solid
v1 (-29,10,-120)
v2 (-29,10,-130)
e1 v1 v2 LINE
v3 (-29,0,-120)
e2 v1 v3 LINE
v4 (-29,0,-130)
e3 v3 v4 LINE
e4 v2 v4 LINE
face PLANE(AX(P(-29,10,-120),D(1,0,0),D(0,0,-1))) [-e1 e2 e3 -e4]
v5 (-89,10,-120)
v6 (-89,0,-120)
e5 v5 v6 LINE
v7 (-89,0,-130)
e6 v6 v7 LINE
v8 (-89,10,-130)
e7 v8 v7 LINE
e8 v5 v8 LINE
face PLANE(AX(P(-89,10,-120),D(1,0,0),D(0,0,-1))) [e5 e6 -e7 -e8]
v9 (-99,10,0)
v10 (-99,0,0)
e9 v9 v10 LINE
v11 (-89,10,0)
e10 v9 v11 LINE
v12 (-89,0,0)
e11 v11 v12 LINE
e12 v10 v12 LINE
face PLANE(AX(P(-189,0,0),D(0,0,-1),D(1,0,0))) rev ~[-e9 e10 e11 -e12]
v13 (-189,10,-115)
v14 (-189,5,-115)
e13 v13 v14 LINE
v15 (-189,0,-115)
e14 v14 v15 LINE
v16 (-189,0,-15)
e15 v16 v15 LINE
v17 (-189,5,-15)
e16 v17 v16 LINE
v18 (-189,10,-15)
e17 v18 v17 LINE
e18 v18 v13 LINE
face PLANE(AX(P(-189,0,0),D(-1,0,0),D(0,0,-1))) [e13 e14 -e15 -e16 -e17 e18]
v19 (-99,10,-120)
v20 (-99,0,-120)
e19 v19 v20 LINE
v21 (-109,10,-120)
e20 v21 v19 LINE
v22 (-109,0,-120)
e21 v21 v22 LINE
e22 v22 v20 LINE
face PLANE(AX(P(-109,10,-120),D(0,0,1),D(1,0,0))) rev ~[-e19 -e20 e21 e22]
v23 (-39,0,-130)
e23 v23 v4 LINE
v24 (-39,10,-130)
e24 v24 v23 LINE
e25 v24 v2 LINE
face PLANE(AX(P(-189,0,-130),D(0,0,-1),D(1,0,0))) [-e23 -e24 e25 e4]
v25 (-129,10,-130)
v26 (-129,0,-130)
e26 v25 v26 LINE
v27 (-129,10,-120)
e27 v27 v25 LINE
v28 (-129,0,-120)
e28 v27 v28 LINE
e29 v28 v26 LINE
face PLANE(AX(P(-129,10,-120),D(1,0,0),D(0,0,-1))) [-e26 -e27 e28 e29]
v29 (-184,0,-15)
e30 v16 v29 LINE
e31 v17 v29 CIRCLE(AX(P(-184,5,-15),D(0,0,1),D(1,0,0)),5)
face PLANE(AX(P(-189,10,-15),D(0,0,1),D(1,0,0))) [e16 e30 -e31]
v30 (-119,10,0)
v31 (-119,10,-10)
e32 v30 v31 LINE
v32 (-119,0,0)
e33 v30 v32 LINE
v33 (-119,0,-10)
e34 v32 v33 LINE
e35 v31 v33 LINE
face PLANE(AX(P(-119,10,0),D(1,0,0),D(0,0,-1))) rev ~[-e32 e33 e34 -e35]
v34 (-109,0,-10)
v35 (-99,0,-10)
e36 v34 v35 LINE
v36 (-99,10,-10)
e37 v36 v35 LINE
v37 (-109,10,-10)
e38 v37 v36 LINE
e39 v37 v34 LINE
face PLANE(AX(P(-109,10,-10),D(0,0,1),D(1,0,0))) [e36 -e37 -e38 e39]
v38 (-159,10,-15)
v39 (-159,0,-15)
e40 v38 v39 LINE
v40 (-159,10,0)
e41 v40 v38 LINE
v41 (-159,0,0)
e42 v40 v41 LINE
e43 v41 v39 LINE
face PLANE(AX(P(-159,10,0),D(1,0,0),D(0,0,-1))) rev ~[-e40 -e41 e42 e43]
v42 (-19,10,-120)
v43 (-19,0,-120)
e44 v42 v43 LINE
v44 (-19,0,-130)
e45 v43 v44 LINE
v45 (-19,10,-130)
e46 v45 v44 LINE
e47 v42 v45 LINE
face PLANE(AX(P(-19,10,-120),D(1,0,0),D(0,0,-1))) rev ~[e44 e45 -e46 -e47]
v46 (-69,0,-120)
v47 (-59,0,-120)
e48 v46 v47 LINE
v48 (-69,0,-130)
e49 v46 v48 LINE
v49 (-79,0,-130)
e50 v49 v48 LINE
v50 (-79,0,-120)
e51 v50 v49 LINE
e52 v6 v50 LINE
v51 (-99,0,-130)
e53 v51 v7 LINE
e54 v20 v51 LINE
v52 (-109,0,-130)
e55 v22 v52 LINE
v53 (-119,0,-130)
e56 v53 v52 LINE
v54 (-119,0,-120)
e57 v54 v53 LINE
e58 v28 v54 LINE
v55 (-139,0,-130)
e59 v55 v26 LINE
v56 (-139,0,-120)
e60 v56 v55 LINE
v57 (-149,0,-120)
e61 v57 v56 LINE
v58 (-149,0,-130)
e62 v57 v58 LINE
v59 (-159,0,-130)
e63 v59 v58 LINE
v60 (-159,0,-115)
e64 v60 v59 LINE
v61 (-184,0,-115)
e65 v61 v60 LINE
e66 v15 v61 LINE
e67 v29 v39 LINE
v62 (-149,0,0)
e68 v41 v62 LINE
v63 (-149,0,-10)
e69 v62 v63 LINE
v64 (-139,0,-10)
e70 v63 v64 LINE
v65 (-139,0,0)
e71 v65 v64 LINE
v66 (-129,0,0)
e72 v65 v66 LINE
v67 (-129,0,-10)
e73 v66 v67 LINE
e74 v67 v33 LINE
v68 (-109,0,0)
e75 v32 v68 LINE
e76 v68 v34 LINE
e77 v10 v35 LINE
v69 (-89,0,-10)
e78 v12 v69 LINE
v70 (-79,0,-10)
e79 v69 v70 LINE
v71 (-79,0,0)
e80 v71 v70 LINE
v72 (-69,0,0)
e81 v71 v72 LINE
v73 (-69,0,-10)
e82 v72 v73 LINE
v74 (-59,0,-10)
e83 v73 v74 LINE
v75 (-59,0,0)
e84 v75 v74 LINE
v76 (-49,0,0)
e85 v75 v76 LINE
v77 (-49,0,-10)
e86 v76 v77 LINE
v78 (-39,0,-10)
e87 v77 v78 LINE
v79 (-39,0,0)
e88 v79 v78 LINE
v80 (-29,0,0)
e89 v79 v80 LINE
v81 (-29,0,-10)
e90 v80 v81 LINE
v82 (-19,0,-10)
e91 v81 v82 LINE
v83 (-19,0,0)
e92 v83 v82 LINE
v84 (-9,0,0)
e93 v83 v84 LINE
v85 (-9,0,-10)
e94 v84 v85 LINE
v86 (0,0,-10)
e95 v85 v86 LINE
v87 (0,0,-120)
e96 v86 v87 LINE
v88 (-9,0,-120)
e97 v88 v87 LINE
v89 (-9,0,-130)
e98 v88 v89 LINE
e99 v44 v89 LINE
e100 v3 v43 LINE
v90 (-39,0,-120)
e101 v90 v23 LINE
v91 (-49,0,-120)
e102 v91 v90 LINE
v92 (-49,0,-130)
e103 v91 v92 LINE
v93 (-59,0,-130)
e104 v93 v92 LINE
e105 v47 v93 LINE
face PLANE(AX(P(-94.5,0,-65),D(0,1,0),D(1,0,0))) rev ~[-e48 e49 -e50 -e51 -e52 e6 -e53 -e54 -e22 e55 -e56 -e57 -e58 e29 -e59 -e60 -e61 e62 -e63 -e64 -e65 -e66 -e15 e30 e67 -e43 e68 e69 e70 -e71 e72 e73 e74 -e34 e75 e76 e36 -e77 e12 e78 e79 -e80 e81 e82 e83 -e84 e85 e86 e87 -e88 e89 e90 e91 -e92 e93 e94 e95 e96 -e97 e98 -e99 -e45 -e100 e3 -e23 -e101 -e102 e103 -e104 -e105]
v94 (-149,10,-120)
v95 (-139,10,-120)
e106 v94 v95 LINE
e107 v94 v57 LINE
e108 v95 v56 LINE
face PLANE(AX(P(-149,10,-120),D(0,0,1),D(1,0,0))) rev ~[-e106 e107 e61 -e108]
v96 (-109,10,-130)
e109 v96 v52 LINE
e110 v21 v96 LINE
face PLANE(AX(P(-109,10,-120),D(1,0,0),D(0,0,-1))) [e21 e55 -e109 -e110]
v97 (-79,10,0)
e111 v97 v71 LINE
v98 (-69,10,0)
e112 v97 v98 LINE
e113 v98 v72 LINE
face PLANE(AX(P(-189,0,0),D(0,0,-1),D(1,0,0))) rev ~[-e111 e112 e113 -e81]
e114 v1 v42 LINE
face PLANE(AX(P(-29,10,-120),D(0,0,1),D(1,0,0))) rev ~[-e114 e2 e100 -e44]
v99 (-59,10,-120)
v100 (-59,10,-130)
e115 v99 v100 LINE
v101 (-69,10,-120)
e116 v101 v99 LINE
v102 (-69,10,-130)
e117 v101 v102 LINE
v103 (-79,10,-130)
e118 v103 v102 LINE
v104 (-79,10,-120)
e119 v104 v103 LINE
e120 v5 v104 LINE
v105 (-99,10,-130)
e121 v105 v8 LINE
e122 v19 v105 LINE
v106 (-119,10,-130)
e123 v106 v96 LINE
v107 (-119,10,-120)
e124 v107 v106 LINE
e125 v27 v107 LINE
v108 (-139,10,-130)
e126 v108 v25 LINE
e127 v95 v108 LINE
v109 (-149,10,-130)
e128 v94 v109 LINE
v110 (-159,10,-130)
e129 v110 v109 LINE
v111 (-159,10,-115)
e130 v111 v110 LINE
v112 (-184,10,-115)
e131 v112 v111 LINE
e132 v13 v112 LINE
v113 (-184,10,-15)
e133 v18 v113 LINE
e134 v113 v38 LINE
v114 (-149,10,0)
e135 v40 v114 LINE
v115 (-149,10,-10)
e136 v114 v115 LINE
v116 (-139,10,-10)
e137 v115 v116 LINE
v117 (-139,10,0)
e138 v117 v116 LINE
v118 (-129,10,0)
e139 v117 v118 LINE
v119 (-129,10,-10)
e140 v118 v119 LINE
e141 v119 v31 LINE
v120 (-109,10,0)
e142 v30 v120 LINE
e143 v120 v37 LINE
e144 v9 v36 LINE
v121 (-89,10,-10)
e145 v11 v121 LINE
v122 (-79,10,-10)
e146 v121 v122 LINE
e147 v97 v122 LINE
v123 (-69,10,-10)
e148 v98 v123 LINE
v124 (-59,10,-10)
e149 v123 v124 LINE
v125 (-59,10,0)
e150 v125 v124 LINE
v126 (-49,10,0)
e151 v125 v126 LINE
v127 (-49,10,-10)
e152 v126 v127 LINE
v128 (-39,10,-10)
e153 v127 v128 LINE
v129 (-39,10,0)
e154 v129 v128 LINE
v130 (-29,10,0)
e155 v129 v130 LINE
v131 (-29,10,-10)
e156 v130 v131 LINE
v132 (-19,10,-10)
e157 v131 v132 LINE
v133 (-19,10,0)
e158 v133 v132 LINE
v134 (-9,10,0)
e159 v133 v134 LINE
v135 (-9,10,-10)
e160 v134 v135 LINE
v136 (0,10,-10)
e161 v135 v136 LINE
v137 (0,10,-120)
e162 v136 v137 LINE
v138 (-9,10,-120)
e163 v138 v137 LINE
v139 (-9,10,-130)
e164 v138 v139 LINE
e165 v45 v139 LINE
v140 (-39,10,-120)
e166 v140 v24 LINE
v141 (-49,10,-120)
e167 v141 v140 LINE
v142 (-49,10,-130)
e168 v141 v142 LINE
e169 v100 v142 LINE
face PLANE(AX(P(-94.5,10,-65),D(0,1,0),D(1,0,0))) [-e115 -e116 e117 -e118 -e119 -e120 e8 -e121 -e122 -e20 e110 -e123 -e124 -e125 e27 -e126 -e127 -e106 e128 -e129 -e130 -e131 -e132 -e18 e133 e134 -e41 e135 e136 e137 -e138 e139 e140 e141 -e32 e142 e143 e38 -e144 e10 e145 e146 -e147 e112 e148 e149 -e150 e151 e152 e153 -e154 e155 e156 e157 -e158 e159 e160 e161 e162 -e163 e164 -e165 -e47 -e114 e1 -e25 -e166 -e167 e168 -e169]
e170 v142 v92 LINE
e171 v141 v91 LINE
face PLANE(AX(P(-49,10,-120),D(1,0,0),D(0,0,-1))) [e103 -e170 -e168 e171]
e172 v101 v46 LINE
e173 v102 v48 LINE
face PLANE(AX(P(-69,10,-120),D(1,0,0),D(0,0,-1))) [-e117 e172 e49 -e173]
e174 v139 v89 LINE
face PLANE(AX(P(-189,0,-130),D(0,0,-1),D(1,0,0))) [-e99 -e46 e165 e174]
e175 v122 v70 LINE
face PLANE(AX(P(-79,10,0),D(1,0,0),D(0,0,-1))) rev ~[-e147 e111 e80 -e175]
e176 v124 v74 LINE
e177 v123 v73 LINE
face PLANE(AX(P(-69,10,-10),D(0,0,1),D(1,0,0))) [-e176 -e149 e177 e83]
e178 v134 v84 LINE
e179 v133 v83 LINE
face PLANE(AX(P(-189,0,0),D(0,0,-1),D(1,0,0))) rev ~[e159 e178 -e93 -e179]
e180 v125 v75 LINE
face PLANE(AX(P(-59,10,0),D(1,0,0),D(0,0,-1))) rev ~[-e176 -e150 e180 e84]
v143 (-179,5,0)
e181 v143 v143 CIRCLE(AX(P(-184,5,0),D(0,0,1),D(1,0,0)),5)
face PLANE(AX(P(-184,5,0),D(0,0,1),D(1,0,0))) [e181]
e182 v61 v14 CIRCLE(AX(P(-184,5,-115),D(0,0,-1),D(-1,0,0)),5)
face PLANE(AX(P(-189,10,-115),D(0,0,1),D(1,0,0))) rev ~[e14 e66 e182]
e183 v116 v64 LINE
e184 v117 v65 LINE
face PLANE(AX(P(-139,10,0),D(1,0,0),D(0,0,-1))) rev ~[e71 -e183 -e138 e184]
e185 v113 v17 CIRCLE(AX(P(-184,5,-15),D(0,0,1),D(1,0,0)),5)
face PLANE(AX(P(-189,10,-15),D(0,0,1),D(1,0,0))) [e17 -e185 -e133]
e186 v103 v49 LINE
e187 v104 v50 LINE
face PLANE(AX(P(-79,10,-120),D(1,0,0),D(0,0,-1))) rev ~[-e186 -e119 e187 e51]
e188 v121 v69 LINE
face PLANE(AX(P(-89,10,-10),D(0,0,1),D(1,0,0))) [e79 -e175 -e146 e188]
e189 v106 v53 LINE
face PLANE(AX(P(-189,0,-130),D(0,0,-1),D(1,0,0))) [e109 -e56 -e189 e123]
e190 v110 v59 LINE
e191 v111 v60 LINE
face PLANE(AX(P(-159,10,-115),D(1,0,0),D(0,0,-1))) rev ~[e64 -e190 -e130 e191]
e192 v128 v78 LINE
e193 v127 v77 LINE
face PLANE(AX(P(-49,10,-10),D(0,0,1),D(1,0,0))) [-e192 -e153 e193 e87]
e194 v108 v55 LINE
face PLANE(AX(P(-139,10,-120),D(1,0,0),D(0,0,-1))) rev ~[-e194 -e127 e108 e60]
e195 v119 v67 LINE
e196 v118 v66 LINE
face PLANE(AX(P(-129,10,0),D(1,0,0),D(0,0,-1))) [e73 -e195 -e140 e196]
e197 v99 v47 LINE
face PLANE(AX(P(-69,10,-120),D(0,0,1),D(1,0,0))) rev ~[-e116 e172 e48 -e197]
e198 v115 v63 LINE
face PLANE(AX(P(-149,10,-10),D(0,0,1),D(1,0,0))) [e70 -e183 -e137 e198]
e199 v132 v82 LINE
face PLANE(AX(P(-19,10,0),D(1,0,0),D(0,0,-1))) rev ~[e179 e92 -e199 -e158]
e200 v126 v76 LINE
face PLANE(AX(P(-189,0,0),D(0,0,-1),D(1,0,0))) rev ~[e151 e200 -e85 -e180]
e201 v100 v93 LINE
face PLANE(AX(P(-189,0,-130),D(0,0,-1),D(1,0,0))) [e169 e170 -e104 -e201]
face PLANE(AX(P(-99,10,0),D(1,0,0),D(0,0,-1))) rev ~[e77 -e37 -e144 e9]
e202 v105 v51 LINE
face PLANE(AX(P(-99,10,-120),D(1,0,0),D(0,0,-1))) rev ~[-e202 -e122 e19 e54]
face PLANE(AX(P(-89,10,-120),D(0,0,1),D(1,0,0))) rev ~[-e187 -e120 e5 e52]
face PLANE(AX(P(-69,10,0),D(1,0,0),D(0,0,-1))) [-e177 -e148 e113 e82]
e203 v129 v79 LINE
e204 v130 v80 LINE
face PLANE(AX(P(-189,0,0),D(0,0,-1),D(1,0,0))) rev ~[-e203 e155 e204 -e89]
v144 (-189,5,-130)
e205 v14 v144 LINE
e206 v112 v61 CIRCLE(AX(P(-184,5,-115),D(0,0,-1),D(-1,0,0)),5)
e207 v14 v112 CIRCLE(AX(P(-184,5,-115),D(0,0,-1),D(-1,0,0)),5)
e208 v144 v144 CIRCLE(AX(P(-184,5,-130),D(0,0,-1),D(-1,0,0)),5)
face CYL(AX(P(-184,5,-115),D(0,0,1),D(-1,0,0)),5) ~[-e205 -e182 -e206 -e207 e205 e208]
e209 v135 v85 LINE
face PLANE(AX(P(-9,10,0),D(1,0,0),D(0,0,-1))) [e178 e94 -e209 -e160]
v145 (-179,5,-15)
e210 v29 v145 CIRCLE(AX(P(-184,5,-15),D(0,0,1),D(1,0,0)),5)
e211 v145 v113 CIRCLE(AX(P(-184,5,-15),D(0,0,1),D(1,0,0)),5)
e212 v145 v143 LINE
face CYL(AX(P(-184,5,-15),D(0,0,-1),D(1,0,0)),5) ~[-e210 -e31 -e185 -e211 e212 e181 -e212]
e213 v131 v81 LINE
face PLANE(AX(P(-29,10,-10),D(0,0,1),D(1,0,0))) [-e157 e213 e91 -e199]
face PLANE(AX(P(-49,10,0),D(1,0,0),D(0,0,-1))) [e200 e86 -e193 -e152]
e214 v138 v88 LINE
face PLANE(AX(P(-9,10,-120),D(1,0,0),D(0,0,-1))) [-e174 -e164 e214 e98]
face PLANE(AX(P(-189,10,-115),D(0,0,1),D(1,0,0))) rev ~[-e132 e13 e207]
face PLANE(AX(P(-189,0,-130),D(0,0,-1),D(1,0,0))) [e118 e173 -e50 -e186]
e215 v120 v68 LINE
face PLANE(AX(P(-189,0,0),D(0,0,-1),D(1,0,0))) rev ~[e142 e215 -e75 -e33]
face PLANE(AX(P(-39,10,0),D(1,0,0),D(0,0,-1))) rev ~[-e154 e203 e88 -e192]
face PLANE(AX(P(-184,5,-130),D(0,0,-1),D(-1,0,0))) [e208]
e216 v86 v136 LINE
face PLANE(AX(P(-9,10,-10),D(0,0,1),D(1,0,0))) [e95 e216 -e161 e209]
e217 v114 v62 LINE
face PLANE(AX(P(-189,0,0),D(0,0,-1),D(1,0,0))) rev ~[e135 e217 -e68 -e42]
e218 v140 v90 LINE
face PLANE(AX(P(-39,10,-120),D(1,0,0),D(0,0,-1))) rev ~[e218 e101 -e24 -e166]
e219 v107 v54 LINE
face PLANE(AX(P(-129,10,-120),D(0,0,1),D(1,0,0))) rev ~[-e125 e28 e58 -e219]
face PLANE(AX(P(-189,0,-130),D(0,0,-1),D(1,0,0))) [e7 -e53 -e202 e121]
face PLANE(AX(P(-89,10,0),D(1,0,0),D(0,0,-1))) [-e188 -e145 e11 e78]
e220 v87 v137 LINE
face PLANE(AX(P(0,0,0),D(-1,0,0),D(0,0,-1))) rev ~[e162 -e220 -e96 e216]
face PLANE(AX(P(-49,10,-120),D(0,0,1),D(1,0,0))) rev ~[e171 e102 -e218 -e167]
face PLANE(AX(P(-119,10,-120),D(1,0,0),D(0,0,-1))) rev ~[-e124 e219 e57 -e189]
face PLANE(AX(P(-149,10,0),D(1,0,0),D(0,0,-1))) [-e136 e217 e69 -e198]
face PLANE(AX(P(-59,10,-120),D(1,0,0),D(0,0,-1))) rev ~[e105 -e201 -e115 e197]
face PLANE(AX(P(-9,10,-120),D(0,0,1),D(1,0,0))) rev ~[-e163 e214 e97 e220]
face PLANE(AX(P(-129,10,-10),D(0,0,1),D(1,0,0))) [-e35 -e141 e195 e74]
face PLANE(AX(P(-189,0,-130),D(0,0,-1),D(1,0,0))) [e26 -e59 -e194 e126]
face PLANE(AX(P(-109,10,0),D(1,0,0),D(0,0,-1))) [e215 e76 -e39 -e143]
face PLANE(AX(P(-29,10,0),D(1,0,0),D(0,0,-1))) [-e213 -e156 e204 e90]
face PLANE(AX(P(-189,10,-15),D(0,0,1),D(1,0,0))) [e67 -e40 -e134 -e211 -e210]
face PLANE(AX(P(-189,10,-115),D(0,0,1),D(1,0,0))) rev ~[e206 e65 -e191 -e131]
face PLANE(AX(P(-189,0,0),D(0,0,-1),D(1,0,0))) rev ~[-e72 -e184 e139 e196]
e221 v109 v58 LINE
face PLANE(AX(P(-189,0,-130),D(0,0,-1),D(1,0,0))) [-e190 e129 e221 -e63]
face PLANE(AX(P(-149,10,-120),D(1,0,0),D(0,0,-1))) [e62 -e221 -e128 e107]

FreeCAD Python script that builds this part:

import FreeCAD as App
import Part
import Sketcher
from FreeCAD import Vector

doc = App.newDocument("Part")
params = doc.addObject("Spreadsheet::Sheet", "Params")
for row, (alias, value) in enumerate([
    ("sketch1_width", "189 mm"),
    ("sketch1_height", "130 mm"),
    ("pad1_length", "10 mm"),
    ("sketch2_width", "30 mm"),
    ("sketch2_height", "15 mm"),
    ("pocket1_length", "10 mm"),
    ("sketch3_width", "10 mm"),
    ("pocket2_length", "10 mm"),
    ("linearpattern_pitch", "20 mm"),
    ("sketch4_diameter", "10 mm"),
    ("pad2_length", "15 mm"),
    ("sketch5_diameter", "10 mm"),
    ("pad3_length", "15 mm"),
], start=1):
    params.set(f"A{row}", alias)
    params.set(f"B{row}", "=" + value)
    params.setAlias(f"B{row}", alias)

body = doc.addObject("PartDesign::Body", "Body")

sketch1 = body.newObject("Sketcher::SketchObject", "Sketch")
sketch1.AttachmentSupport = (doc.getObject("XZ_Plane"), [""])
sketch1.MapMode = "FlatFace"
sketch1.addGeometry([
    Part.LineSegment(Vector(-189, -130, 0), Vector(-189, 0, 0)),
    Part.LineSegment(Vector(-189, 0, 0), Vector(0, 0, 0)),
    Part.LineSegment(Vector(0, 0, 0), Vector(0, -130, 0)),
    Part.LineSegment(Vector(0, -130, 0), Vector(-189, -130, 0)),
], False)
sketch1.addConstraint([
    Sketcher.Constraint("Coincident", 0, 2, 1, 1),
    Sketcher.Constraint("Coincident", 1, 2, 2, 1),
    Sketcher.Constraint("Coincident", 2, 2, 3, 1),
    Sketcher.Constraint("Coincident", 3, 2, 0, 1),
    Sketcher.Constraint("Vertical", 0),
    Sketcher.Constraint("Horizontal", 1),
    Sketcher.Constraint("Vertical", 2),
    Sketcher.Constraint("Horizontal", 3),
    Sketcher.Constraint("Coincident", 1, 2, -1, 1),
    Sketcher.Constraint("DistanceX", 1, 1, 1, 2, 189.0),
    Sketcher.Constraint("DistanceY", 0, 1, 0, 2, 130.0),
])
sketch1.setExpression("Constraints[9]", "Params.sketch1_width")
sketch1.setExpression("Constraints[10]", "Params.sketch1_height")
pad1 = body.newObject("PartDesign::Pad", "Pad")
pad1.Profile = sketch1
pad1.setExpression("Length", "Params.pad1_length")
pad1.Reversed = True

sketch2 = body.newObject("Sketcher::SketchObject", "Sketch001")
sketch2.AttachmentSupport = (doc.getObject("XZ_Plane"), [""])
sketch2.MapMode = "FlatFace"
sketch2.AttachmentOffset = App.Placement(Vector(0, 0, -10), App.Rotation())
sketch2.addGeometry([
    Part.LineSegment(Vector(-189, -130, 0), Vector(-189, -115, 0)),
    Part.LineSegment(Vector(-189, -115, 0), Vector(-159, -115, 0)),
    Part.LineSegment(Vector(-159, -115, 0), Vector(-159, -130, 0)),
    Part.LineSegment(Vector(-159, -130, 0), Vector(-189, -130, 0)),
    Part.LineSegment(Vector(-189, -15, 0), Vector(-189, 0, 0)),
    Part.LineSegment(Vector(-189, 0, 0), Vector(-159, 0, 0)),
    Part.LineSegment(Vector(-159, 0, 0), Vector(-159, -15, 0)),
    Part.LineSegment(Vector(-159, -15, 0), Vector(-189, -15, 0)),
], False)
sketch2.addConstraint([
    Sketcher.Constraint("Coincident", 0, 2, 1, 1),
    Sketcher.Constraint("Coincident", 1, 2, 2, 1),
    Sketcher.Constraint("Coincident", 2, 2, 3, 1),
    Sketcher.Constraint("Coincident", 3, 2, 0, 1),
    Sketcher.Constraint("Coincident", 4, 2, 5, 1),
    Sketcher.Constraint("Coincident", 5, 2, 6, 1),
    Sketcher.Constraint("Coincident", 6, 2, 7, 1),
    Sketcher.Constraint("Coincident", 7, 2, 4, 1),
    Sketcher.Constraint("Vertical", 0),
    Sketcher.Constraint("Horizontal", 1),
    Sketcher.Constraint("Vertical", 2),
    Sketcher.Constraint("Horizontal", 3),
    Sketcher.Constraint("Vertical", 4),
    Sketcher.Constraint("Horizontal", 5),
    Sketcher.Constraint("Vertical", 6),
    Sketcher.Constraint("Horizontal", 7),
    Sketcher.Constraint("PointOnObject", 4, 2, -1),
    Sketcher.Constraint("Vertical", 3, 2, 4, 2),
    Sketcher.Constraint("Vertical", 2, 2, 5, 2),
    Sketcher.Constraint("Equal", 2, 4),
    Sketcher.Constraint("DistanceX", 1, 1, 1, 2, 30.0),
    Sketcher.Constraint("DistanceY", 0, 1, 0, 2, 15.0),
    Sketcher.Constraint("DistanceX", 0, 2, -1, 1, 189.0),
    Sketcher.Constraint("DistanceY", 0, 2, -1, 1, 115.0),
])
sketch2.setExpression("Constraints[20]", "Params.sketch2_width")
sketch2.setExpression("Constraints[21]", "Params.sketch2_height")
pocket1 = body.newObject("PartDesign::Pocket", "Pocket")
pocket1.Profile = sketch2
pocket1.setExpression("Length", "Params.pocket1_length")
pocket1.Reversed = True

sketch3 = body.newObject("Sketcher::SketchObject", "Sketch002")
sketch3.AttachmentSupport = (doc.getObject("XZ_Plane"), [""])
sketch3.MapMode = "FlatFace"
sketch3.AttachmentOffset = App.Placement(Vector(0, 0, -10), App.Rotation())
sketch3.addGeometry([
    Part.LineSegment(Vector(-149, -130, 0), Vector(-149, -120, 0)),
    Part.LineSegment(Vector(-149, -120, 0), Vector(-139, -120, 0)),
    Part.LineSegment(Vector(-139, -120, 0), Vector(-139, -130, 0)),
    Part.LineSegment(Vector(-139, -130, 0), Vector(-149, -130, 0)),
    Part.LineSegment(Vector(-149, -10, 0), Vector(-149, 0, 0)),
    Part.LineSegment(Vector(-149, 0, 0), Vector(-139, 0, 0)),
    Part.LineSegment(Vector(-139, 0, 0), Vector(-139, -10, 0)),
    Part.LineSegment(Vector(-139, -10, 0), Vector(-149, -10, 0)),
], False)
sketch3.addConstraint([
    Sketcher.Constraint("Coincident", 0, 2, 1, 1),
    Sketcher.Constraint("Coincident", 1, 2, 2, 1),
    Sketcher.Constraint("Coincident", 2, 2, 3, 1),
    Sketcher.Constraint("Coincident", 3, 2, 0, 1),
    Sketcher.Constraint("Coincident", 4, 2, 5, 1),
    Sketcher.Constraint("Coincident", 5, 2, 6, 1),
    Sketcher.Constraint("Coincident", 6, 2, 7, 1),
    Sketcher.Constraint("Coincident", 7, 2, 4, 1),
    Sketcher.Constraint("Vertical", 0),
    Sketcher.Constraint("Horizontal", 1),
    Sketcher.Constraint("Vertical", 2),
    Sketcher.Constraint("Horizontal", 3),
    Sketcher.Constraint("Vertical", 4),
    Sketcher.Constraint("Horizontal", 5),
    Sketcher.Constraint("Vertical", 6),
    Sketcher.Constraint("Horizontal", 7),
    Sketcher.Constraint("PointOnObject", 4, 2, -1),
    Sketcher.Constraint("Vertical", 3, 2, 4, 2),
    Sketcher.Constraint("Vertical", 2, 2, 5, 2),
    Sketcher.Constraint("Equal", 7, 0),
    Sketcher.Constraint("Equal", 2, 4),
    Sketcher.Constraint("DistanceX", 1, 1, 1, 2, 10.0),
    Sketcher.Constraint("DistanceX", 0, 2, -1, 1, 149.0),
    Sketcher.Constraint("DistanceY", 0, 2, -1, 1, 120.0),
])
sketch3.setExpression("Constraints[21]", "Params.sketch3_width")
pocket2 = body.newObject("PartDesign::Pocket", "Pocket001")
pocket2.Profile = sketch3
pocket2.setExpression("Length", "Params.pocket2_length")
pocket2.Reversed = True
doc.recompute()

linearpattern = body.newObject("PartDesign::LinearPattern", "LinearPattern")
linearpattern.Originals = [pocket2]
linearpattern.Direction = (doc.getObject("X_Axis"), [""])
linearpattern.Mode = "offset"
linearpattern.setExpression("Offset", "Params.linearpattern_pitch")
linearpattern.Occurrences = 8
body.Tip = linearpattern

sketch4 = body.newObject("Sketcher::SketchObject", "Sketch003")
sketch4.AttachmentSupport = (doc.getObject("XY_Plane"), [""])
sketch4.MapMode = "FlatFace"
sketch4.AttachmentOffset = App.Placement(Vector(0, 0, -15), App.Rotation())
sketch4.addGeometry(Part.Circle(Vector(-184, 5, 0), Vector(0, 0, 1), 5), False)
sketch4.addConstraint([
    Sketcher.Constraint("Diameter", 0, 10.0),
    Sketcher.Constraint("DistanceX", 0, 3, -1, 1, 184.0),
    Sketcher.Constraint("DistanceY", -1, 1, 0, 3, 5.0),
])
sketch4.setExpression("Constraints[0]", "Params.sketch4_diameter")
pad2 = body.newObject("PartDesign::Pad", "Pad001")
pad2.Profile = sketch4
pad2.setExpression("Length", "Params.pad2_length")

sketch5 = body.newObject("Sketcher::SketchObject", "Sketch004")
sketch5.AttachmentSupport = (doc.getObject("XY_Plane"), [""])
sketch5.MapMode = "FlatFace"
sketch5.AttachmentOffset = App.Placement(Vector(0, 0, -115), App.Rotation())
sketch5.addGeometry(Part.Circle(Vector(-184, 5, 0), Vector(0, 0, 1), 5), False)
sketch5.addConstraint([
    Sketcher.Constraint("Diameter", 0, 10.0),
    Sketcher.Constraint("DistanceX", 0, 3, -1, 1, 184.0),
    Sketcher.Constraint("DistanceY", -1, 1, 0, 3, 5.0),
])
sketch5.setExpression("Constraints[0]", "Params.sketch5_diameter")
pad3 = body.newObject("PartDesign::Pad", "Pad002")
pad3.Profile = sketch5
pad3.setExpression("Length", "Params.pad3_length")
pad3.Reversed = True

doc.recompute()
